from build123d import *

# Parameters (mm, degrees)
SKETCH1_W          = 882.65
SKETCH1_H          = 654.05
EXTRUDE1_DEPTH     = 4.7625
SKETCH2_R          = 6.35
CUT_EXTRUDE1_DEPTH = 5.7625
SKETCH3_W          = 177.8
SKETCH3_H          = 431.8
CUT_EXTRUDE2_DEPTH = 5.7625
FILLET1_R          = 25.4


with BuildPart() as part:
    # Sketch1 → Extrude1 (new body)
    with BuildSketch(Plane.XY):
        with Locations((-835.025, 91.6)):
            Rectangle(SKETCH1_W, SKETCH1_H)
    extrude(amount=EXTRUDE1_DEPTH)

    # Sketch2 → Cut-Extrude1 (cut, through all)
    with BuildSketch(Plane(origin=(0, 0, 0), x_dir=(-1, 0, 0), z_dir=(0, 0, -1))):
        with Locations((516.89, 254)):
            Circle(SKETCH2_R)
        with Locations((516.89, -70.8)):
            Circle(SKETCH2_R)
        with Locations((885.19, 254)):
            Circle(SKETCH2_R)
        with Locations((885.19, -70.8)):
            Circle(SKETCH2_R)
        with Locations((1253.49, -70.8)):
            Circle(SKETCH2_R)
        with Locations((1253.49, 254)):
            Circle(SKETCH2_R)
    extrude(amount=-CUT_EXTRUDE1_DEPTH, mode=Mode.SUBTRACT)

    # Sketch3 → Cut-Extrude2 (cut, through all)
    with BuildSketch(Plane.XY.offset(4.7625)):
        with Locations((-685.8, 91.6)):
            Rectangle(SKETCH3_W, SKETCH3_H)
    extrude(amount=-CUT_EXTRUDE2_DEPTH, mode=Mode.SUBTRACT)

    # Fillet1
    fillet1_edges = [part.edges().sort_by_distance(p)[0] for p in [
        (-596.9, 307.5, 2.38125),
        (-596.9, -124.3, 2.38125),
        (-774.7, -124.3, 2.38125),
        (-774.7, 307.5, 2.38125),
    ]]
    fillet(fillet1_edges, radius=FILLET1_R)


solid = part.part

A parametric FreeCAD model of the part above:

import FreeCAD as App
import Part
import Sketcher
from FreeCAD import Vector
Q = App.Units.Quantity


def edges_at(feature, points):
    """Names of the edges that pass closest to the given points."""
    edges = feature.Shape.Edges
    near = lambda p: min(range(len(edges)), key=lambda i: edges[i].distToShape(Part.Vertex(*p))[0])
    return sorted({f"Edge{near(p) + 1}" for p in points})


def add_polygon(sketch, points):
    """Adds a closed chain of lines whose ends are joined by coincident constraints."""
    first, n = sketch.GeometryCount, len(points)
    for a, b in zip(points, points[1:] + points[:1]):
        sketch.addGeometry(Part.LineSegment(App.Vector(*a, 0), App.Vector(*b, 0)), False)
    for i in range(n):
        sketch.addConstraint(Sketcher.Constraint("Coincident", first + i, 2, first + (i + 1) % n, 1))

doc = App.newDocument("Part")
body = doc.addObject("PartDesign::Body", "Body")

sketch1 = body.newObject("Sketcher::SketchObject", "Sketch")
sketch1.AttachmentSupport = (doc.getObject("XY_Plane"), [""])
sketch1.MapMode = "FlatFace"
add_polygon(sketch1, [(-1276.35, 418.625), (-1276.35, -235.425), (-393.7, -235.425), (-393.7, 418.625)])
sketch1.addConstraint([
    Sketcher.Constraint("Vertical", 0),
    Sketcher.Constraint("Horizontal", 1),
    Sketcher.Constraint("Vertical", 2),
    Sketcher.Constraint("Horizontal", 3),
    Sketcher.Constraint("DistanceX", 1, 1, 1, 2, Q("34.75 in")),
    Sketcher.Constraint("DistanceY", 0, 2, 0, 1, Q("25.75 in")),
    Sketcher.Constraint("DistanceX", 1, 2, -1, 1, Q("15.5 in")),
    Sketcher.Constraint("DistanceY", 0, 2, -1, 1, Q("235.425 mm")),
])
pad1 = body.newObject("PartDesign::Pad", "Pad")
pad1.Profile = sketch1
pad1.Length = Q("0.1875 in")

sketch2 = body.newObject("Sketcher::SketchObject", "Sketch001")
sketch2.AttachmentSupport = (doc.getObject("XY_Plane"), [""])
sketch2.MapMode = "FlatFace"
sketch2.addGeometry([
    Part.Circle(Vector(-516.89, 254, 0), Vector(0, 0, 1), 6.35),
    Part.Circle(Vector(-516.89, -70.8, 0), Vector(0, 0, 1), 6.35),
    Part.Circle(Vector(-885.19, 254, 0), Vector(0, 0, 1), 6.35),
    Part.Circle(Vector(-885.19, -70.8, 0), Vector(0, 0, 1), 6.35),
    Part.Circle(Vector(-1253.49, -70.8, 0), Vector(0, 0, 1), 6.35),
    Part.Circle(Vector(-1253.49, 254, 0), Vector(0, 0, 1), 6.35),
], False)
sketch2.addConstraint([
    Sketcher.Constraint("Equal", 0, 1),
    Sketcher.Constraint("Equal", 1, 2),
    Sketcher.Constraint("Equal", 2, 3),
    Sketcher.Constraint("Equal", 3, 4),
    Sketcher.Constraint("Equal", 4, 5),
    Sketcher.Constraint("Horizontal", 0, 3, 2, 3),
    Sketcher.Constraint("Horizontal", 1, 3, 3, 3),
    Sketcher.Constraint("Horizontal", 3, 3, 4, 3),
    Sketcher.Constraint("Horizontal", 2, 3, 5, 3),
    Sketcher.Constraint("Vertical", 0, 3, 1, 3),
    Sketcher.Constraint("Vertical", 2, 3, 3, 3),
    Sketcher.Constraint("Vertical", 4, 3, 5, 3),
    Sketcher.Constraint("Diameter", 0, Q("0.5 in")),
    Sketcher.Constraint("DistanceY", -1, 1, 0, 3, Q("10 in")),
    Sketcher.Constraint("DistanceX", 4, 3, 1, 3, Q("29 in")),
    Sketcher.Constraint("DistanceX", 2, 3, 0, 3, Q("14.5 in")),
    Sketcher.Constraint("DistanceX", 0, 3, -1, 1, Q("20.35 in")),
    Sketcher.Constraint("DistanceY", 1, 3, -1, 1, Q("70.8 mm")),
])
pocket1 = body.newObject("PartDesign::Pocket", "Pocket")
pocket1.Profile = sketch2
pocket1.Type = "ThroughAll"
pocket1.Reversed = True

sketch3 = body.newObject("Sketcher::SketchObject", "Sketch002")
sketch3.AttachmentSupport = (doc.getObject("XY_Plane"), [""])
sketch3.MapMode = "FlatFace"
sketch3.AttachmentOffset = App.Placement(Vector(0, 0, 0.1875 * 25.4), App.Rotation())
add_polygon(sketch3, [(-774.7, 307.5), (-774.7, -124.3), (-596.9, -124.3), (-596.9, 307.5)])
sketch3.addConstraint([
    Sketcher.Constraint("Vertical", 0),
    Sketcher.Constraint("Horizontal", 1),
    Sketcher.Constraint("Vertical", 2),
    Sketcher.Constraint("Horizontal", 3),
    Sketcher.Constraint("DistanceX", 1, 1, 1, 2, Q("7 in")),
    Sketcher.Constraint("DistanceY", 0, 2, 0, 1, Q("17 in")),
    Sketcher.Constraint("DistanceX", 0, 2, -1, 1, Q("30.5 in")),
    Sketcher.Constraint("DistanceY", 0, 2, -1, 1, Q("124.3 mm")),
])
pocket2 = body.newObject("PartDesign::Pocket", "Pocket001")
pocket2.Profile = sketch3
pocket2.Type = "ThroughAll"
doc.recompute()

fillet = body.newObject("PartDesign::Fillet", "Fillet")
fillet.Base = (pocket2, edges_at(pocket2, [
    (-596.9, 307.5, 2.381),
    (-596.9, -124.3, 2.381),
    (-774.7, -124.3, 2.381),
    (-774.7, 307.5, 2.381),
]))
fillet.Radius = Q("1 in")

doc.recompute()
